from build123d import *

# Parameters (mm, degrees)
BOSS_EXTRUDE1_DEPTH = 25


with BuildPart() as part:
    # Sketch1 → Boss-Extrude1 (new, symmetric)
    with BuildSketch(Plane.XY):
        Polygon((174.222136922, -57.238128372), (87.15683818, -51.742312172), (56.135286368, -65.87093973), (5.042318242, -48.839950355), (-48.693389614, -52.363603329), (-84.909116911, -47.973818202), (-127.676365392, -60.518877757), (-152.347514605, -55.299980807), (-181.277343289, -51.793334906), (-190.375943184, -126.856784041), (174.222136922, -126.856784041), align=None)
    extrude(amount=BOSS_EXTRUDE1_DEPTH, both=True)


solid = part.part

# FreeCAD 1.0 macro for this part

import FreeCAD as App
import Part
import Sketcher

V = App.Vector


def add_polygon(sketch, points):
    """Adds a closed chain of lines whose ends are joined by coincident constraints."""
    first, n = sketch.GeometryCount, len(points)
    for a, b in zip(points, points[1:] + points[:1]):
        sketch.addGeometry(Part.LineSegment(App.Vector(*a, 0), App.Vector(*b, 0)), False)
    for i in range(n):
        sketch.addConstraint(Sketcher.Constraint("Coincident", first + i, 2, first + (i + 1) % n, 1))

doc = App.newDocument("Part")
params = doc.addObject("Spreadsheet::Sheet", "Params")
for row, (alias, value) in enumerate([
    ("pad1_length", "50 mm"),
], start=1):
    params.set(f"A{row}", alias)
    params.set(f"B{row}", "=" + value)
    params.setAlias(f"B{row}", alias)

body = doc.addObject("PartDesign::Body", "Body")

# Sketch on XY plane
sketch1 = body.newObject("Sketcher::SketchObject", "Sketch")
sketch1.AttachmentSupport = (doc.getObject("XY_Plane"), [""])
sketch1.MapMode = "FlatFace"
add_polygon(sketch1, [(174.222137, -57.238128), (87.156838, -51.742312), (56.135286, -65.87094), (5.042318, -48.83995), (-48.69339, -52.363603), (-84.909117, -47.973818), (-127.676365, -60.518878), (-152.347515, -55.299981), (-181.277343, -51.793335), (-190.375943, -126.856784), (174.222137, -126.856784)])  # lines 0-10
sketch1.addConstraint(Sketcher.Constraint("Horizontal", 9))
sketch1.addConstraint(Sketcher.Constraint("Vertical", 10))
sketch1.addConstraint(Sketcher.Constraint("DistanceX", 9, 1, 9, 2, 364.59808))
sketch1.addConstraint(Sketcher.Constraint("DistanceX", 6, 2, 1, 2, 208.482801))
sketch1.addConstraint(Sketcher.Constraint("DistanceX", 8, 2, 7, 2, 9.0986))
sketch1.addConstraint(Sketcher.Constraint("DistanceX", 0, 2, 9, 2, 87.065299))
sketch1.addConstraint(Sketcher.Constraint("Distance", 1, 34.087458))
sketch1.addConstraint(Sketcher.Constraint("Distance", 8, 75.612869))
sketch1.addConstraint(Sketcher.Constraint("DistanceY", 10, 1, 10, 2, 69.618656))
sketch1.addConstraint(Sketcher.Constraint("DistanceX", -1, 1, 0, 2, 87.156838))
sketch1.addConstraint(Sketcher.Constraint("DistanceY", 1, 2, -1, 1, 65.87094))
sketch1.addConstraint(Sketcher.Constraint("DistanceX", -1, 1, 2, 2, 5.042318))
sketch1.addConstraint(Sketcher.Constraint("DistanceY", 2, 2, -1, 1, 48.83995))
sketch1.addConstraint(Sketcher.Constraint("DistanceX", 3, 2, -1, 1, 48.69339))
sketch1.addConstraint(Sketcher.Constraint("DistanceY", 4, 2, -1, 1, 47.973818))
sketch1.addConstraint(Sketcher.Constraint("DistanceY", 6, 2, -1, 1, 55.299981))
sketch1.addConstraint(Sketcher.Constraint("DistanceY", 10, 2, -1, 1, 57.238128))
sketch1.addConstraint(Sketcher.Constraint("DistanceX", 1, 2, 0, 2, 31.021552))
sketch1.addConstraint(Sketcher.Constraint("DistanceY", 3, 2, 0, 2, 0.621291))
sketch1.addConstraint(Sketcher.Constraint("DistanceX", 5, 2, 4, 2, 42.767248))
sketch1.addConstraint(Sketcher.Constraint("DistanceY", 5, 2, 4, 2, 12.54506))
sketch1.addConstraint(Sketcher.Constraint("DistanceX", 5, 2, 1, 2, 183.811652))
pad1 = body.newObject("PartDesign::Pad", "Pad")
pad1.Profile = sketch1
pad1.setExpression("Length", "Params.pad1_length")
pad1.Midplane = True

doc.recompute()
